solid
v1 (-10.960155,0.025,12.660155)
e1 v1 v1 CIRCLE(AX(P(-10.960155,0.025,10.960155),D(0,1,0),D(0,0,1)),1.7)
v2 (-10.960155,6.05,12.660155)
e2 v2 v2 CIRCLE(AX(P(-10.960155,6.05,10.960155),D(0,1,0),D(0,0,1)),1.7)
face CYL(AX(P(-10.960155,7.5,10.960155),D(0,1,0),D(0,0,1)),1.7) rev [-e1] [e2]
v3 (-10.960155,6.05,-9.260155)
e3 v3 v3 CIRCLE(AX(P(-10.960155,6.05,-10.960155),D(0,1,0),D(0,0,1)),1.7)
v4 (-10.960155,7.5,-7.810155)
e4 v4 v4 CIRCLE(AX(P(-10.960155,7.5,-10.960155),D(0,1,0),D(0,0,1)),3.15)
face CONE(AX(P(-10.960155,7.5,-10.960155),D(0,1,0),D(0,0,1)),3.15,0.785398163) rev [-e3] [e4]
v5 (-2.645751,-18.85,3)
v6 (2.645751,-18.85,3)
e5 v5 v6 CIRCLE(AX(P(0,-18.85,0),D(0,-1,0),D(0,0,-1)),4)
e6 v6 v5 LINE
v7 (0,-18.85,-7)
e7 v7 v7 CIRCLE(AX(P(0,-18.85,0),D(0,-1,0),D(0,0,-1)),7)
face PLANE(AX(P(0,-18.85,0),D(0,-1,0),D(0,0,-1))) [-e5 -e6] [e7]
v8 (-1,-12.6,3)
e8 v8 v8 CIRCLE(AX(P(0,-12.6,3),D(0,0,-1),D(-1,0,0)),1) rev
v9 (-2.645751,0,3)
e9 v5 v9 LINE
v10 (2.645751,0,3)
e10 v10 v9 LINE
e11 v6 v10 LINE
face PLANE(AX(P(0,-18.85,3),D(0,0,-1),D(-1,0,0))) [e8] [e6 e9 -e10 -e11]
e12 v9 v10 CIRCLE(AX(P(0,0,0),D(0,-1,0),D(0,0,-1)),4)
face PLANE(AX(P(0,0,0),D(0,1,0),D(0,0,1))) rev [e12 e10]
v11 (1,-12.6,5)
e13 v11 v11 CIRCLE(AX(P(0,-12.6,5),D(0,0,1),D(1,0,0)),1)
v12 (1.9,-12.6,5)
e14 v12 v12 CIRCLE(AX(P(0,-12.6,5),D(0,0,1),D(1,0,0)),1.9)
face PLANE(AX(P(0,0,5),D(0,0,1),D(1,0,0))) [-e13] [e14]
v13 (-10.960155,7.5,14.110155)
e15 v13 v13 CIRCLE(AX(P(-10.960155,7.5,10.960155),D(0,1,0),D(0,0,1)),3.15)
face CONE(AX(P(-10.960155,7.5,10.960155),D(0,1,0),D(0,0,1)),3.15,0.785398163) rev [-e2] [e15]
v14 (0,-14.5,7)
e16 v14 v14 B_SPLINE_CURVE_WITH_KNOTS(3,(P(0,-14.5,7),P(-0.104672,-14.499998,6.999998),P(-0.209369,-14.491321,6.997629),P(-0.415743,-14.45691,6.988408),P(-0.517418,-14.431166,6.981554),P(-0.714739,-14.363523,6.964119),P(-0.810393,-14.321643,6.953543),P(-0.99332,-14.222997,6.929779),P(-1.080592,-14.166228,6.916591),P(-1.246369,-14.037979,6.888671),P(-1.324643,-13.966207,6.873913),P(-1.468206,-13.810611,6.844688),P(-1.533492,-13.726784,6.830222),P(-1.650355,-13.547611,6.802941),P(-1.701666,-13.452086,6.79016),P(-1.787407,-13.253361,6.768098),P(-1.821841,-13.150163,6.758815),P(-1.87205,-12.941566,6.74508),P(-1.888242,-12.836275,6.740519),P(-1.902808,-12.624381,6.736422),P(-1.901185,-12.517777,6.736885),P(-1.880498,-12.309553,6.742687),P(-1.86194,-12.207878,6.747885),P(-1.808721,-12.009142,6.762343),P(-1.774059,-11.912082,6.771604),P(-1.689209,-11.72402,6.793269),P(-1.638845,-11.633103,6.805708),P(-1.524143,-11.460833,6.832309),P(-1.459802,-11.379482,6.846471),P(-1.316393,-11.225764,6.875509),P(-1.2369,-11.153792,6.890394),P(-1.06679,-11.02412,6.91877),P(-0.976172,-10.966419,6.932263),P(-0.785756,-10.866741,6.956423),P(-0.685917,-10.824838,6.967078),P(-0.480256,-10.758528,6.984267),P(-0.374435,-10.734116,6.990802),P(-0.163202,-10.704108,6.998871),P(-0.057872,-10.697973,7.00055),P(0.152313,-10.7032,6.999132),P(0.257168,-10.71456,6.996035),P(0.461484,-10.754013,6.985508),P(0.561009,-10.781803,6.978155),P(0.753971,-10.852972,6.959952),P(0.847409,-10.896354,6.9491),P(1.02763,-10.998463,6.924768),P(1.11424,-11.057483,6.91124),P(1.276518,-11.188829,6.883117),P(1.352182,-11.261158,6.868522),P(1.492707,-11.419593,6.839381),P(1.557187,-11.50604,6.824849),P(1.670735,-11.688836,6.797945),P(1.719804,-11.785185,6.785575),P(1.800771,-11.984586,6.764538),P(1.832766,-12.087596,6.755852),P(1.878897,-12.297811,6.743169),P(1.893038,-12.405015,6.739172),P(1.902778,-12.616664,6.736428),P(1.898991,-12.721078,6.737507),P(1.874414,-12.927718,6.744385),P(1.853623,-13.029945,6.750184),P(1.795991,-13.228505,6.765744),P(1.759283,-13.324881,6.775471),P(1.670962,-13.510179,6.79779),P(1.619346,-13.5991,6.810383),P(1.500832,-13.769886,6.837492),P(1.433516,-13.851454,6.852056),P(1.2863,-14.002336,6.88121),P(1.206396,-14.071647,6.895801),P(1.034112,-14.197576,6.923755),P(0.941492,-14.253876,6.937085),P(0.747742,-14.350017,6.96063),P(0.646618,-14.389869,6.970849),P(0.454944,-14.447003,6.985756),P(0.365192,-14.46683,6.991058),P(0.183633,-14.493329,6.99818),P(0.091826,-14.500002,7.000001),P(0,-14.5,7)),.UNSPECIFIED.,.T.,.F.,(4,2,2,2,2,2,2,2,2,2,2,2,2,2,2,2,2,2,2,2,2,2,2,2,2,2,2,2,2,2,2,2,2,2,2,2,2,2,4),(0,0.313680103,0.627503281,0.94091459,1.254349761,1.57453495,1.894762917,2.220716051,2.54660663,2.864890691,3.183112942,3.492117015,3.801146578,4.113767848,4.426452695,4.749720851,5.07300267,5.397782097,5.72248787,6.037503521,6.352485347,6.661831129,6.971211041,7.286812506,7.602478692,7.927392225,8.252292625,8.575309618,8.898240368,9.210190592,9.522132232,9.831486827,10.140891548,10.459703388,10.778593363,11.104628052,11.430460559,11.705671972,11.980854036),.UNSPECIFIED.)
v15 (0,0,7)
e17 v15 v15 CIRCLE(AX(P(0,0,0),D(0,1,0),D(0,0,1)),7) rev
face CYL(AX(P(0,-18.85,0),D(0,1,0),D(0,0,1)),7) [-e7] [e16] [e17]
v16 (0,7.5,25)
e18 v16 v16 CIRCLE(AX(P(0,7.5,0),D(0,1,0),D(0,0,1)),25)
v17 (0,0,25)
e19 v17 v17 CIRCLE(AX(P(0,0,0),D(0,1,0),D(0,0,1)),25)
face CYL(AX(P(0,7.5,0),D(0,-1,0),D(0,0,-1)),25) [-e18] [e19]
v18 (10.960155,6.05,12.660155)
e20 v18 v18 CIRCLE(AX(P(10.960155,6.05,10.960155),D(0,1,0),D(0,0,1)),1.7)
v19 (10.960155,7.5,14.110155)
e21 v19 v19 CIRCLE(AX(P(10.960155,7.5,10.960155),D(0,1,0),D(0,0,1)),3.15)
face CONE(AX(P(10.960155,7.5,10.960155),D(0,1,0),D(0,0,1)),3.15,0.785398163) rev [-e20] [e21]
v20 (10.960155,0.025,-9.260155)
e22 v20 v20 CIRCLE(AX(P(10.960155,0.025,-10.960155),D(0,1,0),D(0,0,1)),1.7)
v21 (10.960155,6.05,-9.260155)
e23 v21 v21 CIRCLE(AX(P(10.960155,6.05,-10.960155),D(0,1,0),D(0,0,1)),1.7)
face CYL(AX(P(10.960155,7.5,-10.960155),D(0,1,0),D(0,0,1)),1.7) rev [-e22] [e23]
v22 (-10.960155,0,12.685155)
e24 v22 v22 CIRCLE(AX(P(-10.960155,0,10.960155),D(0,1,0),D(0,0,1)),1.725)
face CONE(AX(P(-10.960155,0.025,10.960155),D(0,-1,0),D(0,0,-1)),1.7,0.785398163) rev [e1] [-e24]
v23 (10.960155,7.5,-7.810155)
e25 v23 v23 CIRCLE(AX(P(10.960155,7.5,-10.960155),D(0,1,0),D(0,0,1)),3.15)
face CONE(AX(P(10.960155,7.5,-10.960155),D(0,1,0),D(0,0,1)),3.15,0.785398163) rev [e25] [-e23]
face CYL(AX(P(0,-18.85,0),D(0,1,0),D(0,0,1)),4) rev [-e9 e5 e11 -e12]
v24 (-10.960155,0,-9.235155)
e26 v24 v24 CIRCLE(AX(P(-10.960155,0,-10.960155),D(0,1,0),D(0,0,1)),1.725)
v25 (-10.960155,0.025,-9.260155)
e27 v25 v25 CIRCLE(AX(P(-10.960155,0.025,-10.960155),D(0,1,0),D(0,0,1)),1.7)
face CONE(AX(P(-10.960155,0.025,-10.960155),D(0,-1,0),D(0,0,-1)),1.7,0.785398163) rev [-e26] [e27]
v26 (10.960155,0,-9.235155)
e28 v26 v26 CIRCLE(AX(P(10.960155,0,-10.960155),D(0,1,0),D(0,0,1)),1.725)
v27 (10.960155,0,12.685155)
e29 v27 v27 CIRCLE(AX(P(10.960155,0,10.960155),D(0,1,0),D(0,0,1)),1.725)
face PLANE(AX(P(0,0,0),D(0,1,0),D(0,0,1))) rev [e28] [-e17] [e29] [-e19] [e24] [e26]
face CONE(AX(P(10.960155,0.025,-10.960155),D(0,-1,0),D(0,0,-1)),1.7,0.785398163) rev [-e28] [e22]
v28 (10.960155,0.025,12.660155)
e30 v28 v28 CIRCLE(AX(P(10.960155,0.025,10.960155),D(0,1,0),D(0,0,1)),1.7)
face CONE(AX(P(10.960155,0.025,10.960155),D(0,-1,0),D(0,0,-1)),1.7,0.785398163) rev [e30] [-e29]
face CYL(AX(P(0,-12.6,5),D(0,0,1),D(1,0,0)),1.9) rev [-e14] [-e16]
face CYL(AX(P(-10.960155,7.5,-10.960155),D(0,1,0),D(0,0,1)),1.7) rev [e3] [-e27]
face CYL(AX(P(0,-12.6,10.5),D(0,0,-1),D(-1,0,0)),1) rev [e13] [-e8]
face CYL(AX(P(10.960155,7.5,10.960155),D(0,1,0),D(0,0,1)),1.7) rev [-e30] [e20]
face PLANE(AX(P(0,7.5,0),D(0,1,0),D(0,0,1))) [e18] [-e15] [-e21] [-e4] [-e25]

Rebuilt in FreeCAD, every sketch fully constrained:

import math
import FreeCAD as App
import Part
import Sketcher
from FreeCAD import Vector
Q = App.Units.Quantity

doc = App.newDocument("Part")
params = doc.addObject("Spreadsheet::Sheet", "Params")
for row, (alias, value) in enumerate([
    ("sketch1_diameter", "50 mm"),
    ("pad1_length", "7.5 mm"),
    ("sketch2_width", "7.5 mm"),
    ("sketch2_height", "3.15 mm"),
    ("groove_angle", "360 deg"),
    ("linearpattern_pitch", "21.92031 mm"),
    ("linearpattern2_pitch", "31 mm"),
    ("linearpattern3_pitch", "21.92031 mm"),
    ("sketch3_diameter", "14 mm"),
    ("sketch3_radius", "4 mm"),
    ("pad2_length", "18.85 mm"),
    ("sketch4_diameter", "2 mm"),
    ("pocket1_length", "10.5 mm"),
    ("sketch5_diameter", "3.8 mm"),
    ("pocket2_length", "2 mm"),
], start=1):
    params.set(f"A{row}", alias)
    params.set(f"B{row}", "=" + value)
    params.setAlias(f"B{row}", alias)

body = doc.addObject("PartDesign::Body", "Body")

# Sketch on XZ plane
sketch1 = body.newObject("Sketcher::SketchObject", "Sketch")
sketch1.AttachmentSupport = (doc.getObject("XZ_Plane"), [""])
sketch1.MapMode = "FlatFace"
sketch1.addGeometry(Part.Circle(Vector(0, 0, 0), Vector(0, 0, 1), 25), False)
sketch1.addConstraint([
    Sketcher.Constraint("Coincident", 0, 3, -1, 1),
    Sketcher.Constraint("Diameter", 0, 50.0),
])
sketch1.setExpression("Constraints[1]", "Params.sketch1_diameter")
pad1 = body.newObject("PartDesign::Pad", "Pad")
pad1.Profile = sketch1
pad1.setExpression("Length", "Params.pad1_length")
pad1.Reversed = True

# Sketch on YZ plane
sketch2 = body.newObject("Sketcher::SketchObject", "Sketch001")
sketch2.AttachmentSupport = (doc.getObject("YZ_Plane"), [""])
sketch2.MapMode = "FlatFace"
sketch2.AttachmentOffset = App.Placement(Vector(0, 0, -10.960155), App.Rotation())
sketch2.addGeometry([
    Part.LineSegment(Vector(0, -10.96, 0), Vector(7.5, -10.96, 0)),  # 0
    Part.LineSegment(Vector(7.5, -10.96, 0), Vector(7.5, -7.81, 0)),  # 1
    Part.LineSegment(Vector(7.5, -7.81, 0), Vector(6.05, -9.26, 0)),  # 2
    Part.LineSegment(Vector(6.05, -9.26, 0), Vector(0.025, -9.26, 0)),  # 3
    Part.LineSegment(Vector(0.025, -9.26, 0), Vector(0, -9.235, 0)),  # 4
    Part.LineSegment(Vector(0, -9.235, 0), Vector(0, -10.96, 0)),  # 5
], False)
sketch2.addGeometry(Part.LineSegment(Vector(7.5, -10.96, 0), Vector(0, -10.96, 0)), True)  # axis
sketch2.addConstraint([
    Sketcher.Constraint("Coincident", 0, 2, 1, 1),
    Sketcher.Constraint("Coincident", 1, 2, 2, 1),
    Sketcher.Constraint("Coincident", 2, 2, 3, 1),
    Sketcher.Constraint("Coincident", 3, 2, 4, 1),
    Sketcher.Constraint("Coincident", 4, 2, 5, 1),
    Sketcher.Constraint("Coincident", 5, 2, 0, 1),
    Sketcher.Constraint("Horizontal", 0),
    Sketcher.Constraint("Vertical", 1),
    Sketcher.Constraint("Horizontal", 3),
    Sketcher.Constraint("Vertical", 5),
    Sketcher.Constraint("Horizontal", 6),
    Sketcher.Constraint("Coincident", 6, 1, 0, 2),
    Sketcher.Constraint("PointOnObject", 4, 2, -2),
    Sketcher.Constraint("PointOnObject", 6, 2, -2),
    Sketcher.Constraint("Perpendicular", 2, 4),
    Sketcher.Constraint("Angle", 2, Q("-135 deg")),
    Sketcher.Constraint("DistanceX", 0, 1, 0, 2, 7.5),
    Sketcher.Constraint("DistanceY", 1, 1, 1, 2, 3.15),
    Sketcher.Constraint("DistanceY", 0, 2, 2, 2, 1.7),
    Sketcher.Constraint("DistanceX", 3, 2, 3, 1, 6.025),
    Sketcher.Constraint("DistanceY", 0, 2, -1, 1, 10.960155),
])
sketch2.setExpression("Constraints[16]", "Params.sketch2_width")
sketch2.setExpression("Constraints[17]", "Params.sketch2_height")
groove = body.newObject("PartDesign::Groove", "Groove")
groove.Profile = sketch2
groove.ReferenceAxis = (sketch2, ["Axis0"])
groove.setExpression("Angle", "Params.groove_angle")
doc.recompute()

linearpattern = body.newObject("PartDesign::LinearPattern", "LinearPattern")
linearpattern.Originals = [groove]
linearpattern.Direction = (doc.getObject("X_Axis"), [""])
linearpattern.Mode = "offset"
linearpattern.setExpression("Offset", "Params.linearpattern_pitch")
linearpattern.Occurrences = 2
body.Tip = linearpattern
doc.recompute()

datumline = body.newObject("PartDesign::Line", "DatumLine")
datumline.Placement = App.Placement(Vector(0, 0, 0), App.Rotation(Vector(0, 0, 1), Vector(0.707106781, 0, 0.707106781)))
linearpattern2 = body.newObject("PartDesign::LinearPattern", "LinearPattern001")
linearpattern2.Originals = [groove]
linearpattern2.Direction = (datumline, [""])
linearpattern2.Mode = "offset"
linearpattern2.setExpression("Offset", "Params.linearpattern2_pitch")
linearpattern2.Occurrences = 2
body.Tip = linearpattern2
doc.recompute()

linearpattern3 = body.newObject("PartDesign::LinearPattern", "LinearPattern002")
linearpattern3.Originals = [groove]
linearpattern3.Direction = (doc.getObject("Z_Axis"), [""])
linearpattern3.Mode = "offset"
linearpattern3.setExpression("Offset", "Params.linearpattern3_pitch")
linearpattern3.Occurrences = 2
body.Tip = linearpattern3

# Sketch on XZ plane
sketch3 = body.newObject("Sketcher::SketchObject", "Sketch002")
sketch3.AttachmentSupport = (doc.getObject("XZ_Plane"), [""])
sketch3.MapMode = "FlatFace"
sketch3.addGeometry([
    Part.Circle(Vector(0, 0, 0), Vector(0, 0, 1), 7),
    Part.ArcOfCircle(Part.Circle(Vector(0, 0, 0), Vector(0, 0, 1), 4), math.radians(131), math.radians(409)),
    Part.LineSegment(Vector(-2.6, 3, 0), Vector(2.6, 3, 0)),
], False)
sketch3.addConstraint([
    Sketcher.Constraint("Coincident", 1, 1, 2, 1),
    Sketcher.Constraint("Coincident", 2, 2, 1, 2),
    Sketcher.Constraint("Horizontal", 2),
    Sketcher.Constraint("Coincident", 0, 3, -1, 1),
    Sketcher.Constraint("Coincident", 1, 3, -1, 1),
    Sketcher.Constraint("Diameter", 0, 14.0),
    Sketcher.Constraint("Radius", 1, 4.0),
    Sketcher.Constraint("DistanceY", -1, 1, 1, 1, 3.0),
])
sketch3.setExpression("Constraints[5]", "Params.sketch3_diameter")
sketch3.setExpression("Constraints[6]", "Params.sketch3_radius")
pad2 = body.newObject("PartDesign::Pad", "Pad001")
pad2.Profile = sketch3
pad2.setExpression("Length", "Params.pad2_length")

# Sketch on XY plane
sketch4 = body.newObject("Sketcher::SketchObject", "Sketch003")
sketch4.AttachmentSupport = (doc.getObject("XY_Plane"), [""])
sketch4.MapMode = "FlatFace"
sketch4.addGeometry(Part.Circle(Vector(0, -12.6, 0), Vector(0, 0, 1), 1), False)
sketch4.addConstraint([
    Sketcher.Constraint("PointOnObject", 0, 3, -2),
    Sketcher.Constraint("Diameter", 0, 2.0),
    Sketcher.Constraint("DistanceY", 0, 3, -1, 1, 12.6),
])
sketch4.setExpression("Constraints[1]", "Params.sketch4_diameter")
pocket1 = body.newObject("PartDesign::Pocket", "Pocket")
pocket1.Profile = sketch4
pocket1.setExpression("Length", "Params.pocket1_length")
pocket1.Reversed = True

# Sketch on XY plane
sketch5 = body.newObject("Sketcher::SketchObject", "Sketch004")
sketch5.AttachmentSupport = (doc.getObject("XY_Plane"), [""])
sketch5.MapMode = "FlatFace"
sketch5.AttachmentOffset = App.Placement(Vector(0, 0, 7), App.Rotation())
sketch5.addGeometry(Part.Circle(Vector(0, -12.6, 0), Vector(0, 0, 1), 1.9), False)
sketch5.addConstraint([
    Sketcher.Constraint("PointOnObject", 0, 3, -2),
    Sketcher.Constraint("Diameter", 0, 3.8),
    Sketcher.Constraint("DistanceY", 0, 3, -1, 1, 12.6),
])
sketch5.setExpression("Constraints[1]", "Params.sketch5_diameter")
pocket2 = body.newObject("PartDesign::Pocket", "Pocket001")
pocket2.Profile = sketch5
pocket2.setExpression("Length", "Params.pocket2_length")

doc.recompute()
